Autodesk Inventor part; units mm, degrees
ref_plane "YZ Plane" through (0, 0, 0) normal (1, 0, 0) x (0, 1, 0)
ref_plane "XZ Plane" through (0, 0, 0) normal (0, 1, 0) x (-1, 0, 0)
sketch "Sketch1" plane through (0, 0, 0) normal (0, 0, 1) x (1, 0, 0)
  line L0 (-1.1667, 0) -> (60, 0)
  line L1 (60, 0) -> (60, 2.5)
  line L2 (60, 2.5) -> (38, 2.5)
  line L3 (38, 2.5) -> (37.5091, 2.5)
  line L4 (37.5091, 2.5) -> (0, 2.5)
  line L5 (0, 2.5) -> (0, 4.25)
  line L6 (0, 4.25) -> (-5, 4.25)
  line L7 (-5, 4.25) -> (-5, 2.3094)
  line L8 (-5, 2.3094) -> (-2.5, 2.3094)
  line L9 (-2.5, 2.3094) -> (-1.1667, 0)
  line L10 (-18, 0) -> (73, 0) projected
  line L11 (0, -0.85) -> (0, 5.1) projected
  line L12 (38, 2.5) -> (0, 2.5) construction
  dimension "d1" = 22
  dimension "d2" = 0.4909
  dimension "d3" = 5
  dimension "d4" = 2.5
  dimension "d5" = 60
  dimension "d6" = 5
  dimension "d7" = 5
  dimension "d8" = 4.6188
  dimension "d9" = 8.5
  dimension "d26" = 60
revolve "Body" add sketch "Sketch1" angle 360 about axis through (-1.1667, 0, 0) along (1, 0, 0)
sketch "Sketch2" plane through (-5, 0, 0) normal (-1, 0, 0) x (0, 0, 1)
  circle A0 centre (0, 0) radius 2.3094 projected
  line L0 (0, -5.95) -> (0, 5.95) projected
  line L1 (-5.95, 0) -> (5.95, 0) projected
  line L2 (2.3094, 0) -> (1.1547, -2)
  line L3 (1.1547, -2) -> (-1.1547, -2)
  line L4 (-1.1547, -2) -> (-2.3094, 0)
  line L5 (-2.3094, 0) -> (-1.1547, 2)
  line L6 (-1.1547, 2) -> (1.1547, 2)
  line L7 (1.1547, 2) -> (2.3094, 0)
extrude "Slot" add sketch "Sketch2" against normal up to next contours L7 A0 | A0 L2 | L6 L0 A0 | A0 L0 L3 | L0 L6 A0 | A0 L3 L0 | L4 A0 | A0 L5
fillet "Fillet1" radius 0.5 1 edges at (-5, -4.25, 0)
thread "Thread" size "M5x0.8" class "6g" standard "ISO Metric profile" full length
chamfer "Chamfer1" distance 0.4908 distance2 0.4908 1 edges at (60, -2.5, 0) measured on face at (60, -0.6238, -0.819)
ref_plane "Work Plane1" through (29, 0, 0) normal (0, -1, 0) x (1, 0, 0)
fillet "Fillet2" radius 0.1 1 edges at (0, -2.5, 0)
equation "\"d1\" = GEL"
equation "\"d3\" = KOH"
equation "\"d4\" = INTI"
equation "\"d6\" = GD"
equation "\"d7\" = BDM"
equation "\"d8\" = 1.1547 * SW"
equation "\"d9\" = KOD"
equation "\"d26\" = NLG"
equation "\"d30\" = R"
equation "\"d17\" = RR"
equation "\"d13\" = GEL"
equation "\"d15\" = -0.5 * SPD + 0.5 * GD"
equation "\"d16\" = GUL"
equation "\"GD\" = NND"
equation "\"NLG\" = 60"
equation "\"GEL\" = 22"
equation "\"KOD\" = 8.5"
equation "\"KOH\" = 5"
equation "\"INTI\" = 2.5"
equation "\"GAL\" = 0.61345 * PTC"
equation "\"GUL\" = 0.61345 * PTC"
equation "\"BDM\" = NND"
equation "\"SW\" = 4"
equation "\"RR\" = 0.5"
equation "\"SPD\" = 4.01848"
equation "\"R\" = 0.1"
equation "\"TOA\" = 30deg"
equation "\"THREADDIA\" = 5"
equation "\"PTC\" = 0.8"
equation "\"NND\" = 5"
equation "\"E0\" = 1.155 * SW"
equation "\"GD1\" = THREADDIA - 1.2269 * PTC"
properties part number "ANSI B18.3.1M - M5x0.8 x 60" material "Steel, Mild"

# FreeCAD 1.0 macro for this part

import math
import FreeCAD as App
import Part
import Sketcher

V = App.Vector
Q = App.Units.Quantity


def edges_at(feature, points):
    """Names of the edges that pass closest to the given points."""
    edges = feature.Shape.Edges
    near = lambda p: min(range(len(edges)), key=lambda i: edges[i].distToShape(Part.Vertex(*p))[0])
    return sorted({f"Edge{near(p) + 1}" for p in points})

doc = App.newDocument("Part")
body = doc.addObject("PartDesign::Body", "Body")

# Sketch on XY plane
sketch1 = doc.addObject("Sketcher::SketchObject", "Sketch")
body.addObject(sketch1)
sketch1.AttachmentSupport = (doc.XY_Plane, [""])
sketch1.MapMode = "FlatFace"
sketch1.addGeometry(Part.LineSegment(V(-2.5, 2.3, 0), V(-1.2, 0, 0)), False)
sketch1.addGeometry(Part.LineSegment(V(-1.2, 0, 0), V(60, 0, 0)), False)
sketch1.addGeometry(Part.LineSegment(V(60, 0, 0), V(60, 2.5, 0)), False)
sketch1.addGeometry(Part.LineSegment(V(60, 2.5, 0), V(0, 2.5, 0)), False)
sketch1.addGeometry(Part.LineSegment(V(0, 2.5, 0), V(0, 4.2, 0)), False)
sketch1.addGeometry(Part.LineSegment(V(0, 4.2, 0), V(-5, 4.2, 0)), False)
sketch1.addGeometry(Part.LineSegment(V(-5, 4.2, 0), V(-5, 2.3, 0)), False)
sketch1.addGeometry(Part.LineSegment(V(-5, 2.3, 0), V(-2.5, 2.3, 0)), False)
sketch1.addConstraint(Sketcher.Constraint("Coincident", 0, 2, 1, 1))
sketch1.addConstraint(Sketcher.Constraint("Coincident", 1, 2, 2, 1))
sketch1.addConstraint(Sketcher.Constraint("Coincident", 2, 2, 3, 1))
sketch1.addConstraint(Sketcher.Constraint("Coincident", 3, 2, 4, 1))
sketch1.addConstraint(Sketcher.Constraint("Coincident", 4, 2, 5, 1))
sketch1.addConstraint(Sketcher.Constraint("Coincident", 5, 2, 6, 1))
sketch1.addConstraint(Sketcher.Constraint("Coincident", 6, 2, 7, 1))
sketch1.addConstraint(Sketcher.Constraint("Coincident", 7, 2, 0, 1))
sketch1.addConstraint(Sketcher.Constraint("Horizontal", 1))
sketch1.addConstraint(Sketcher.Constraint("Vertical", 2))
sketch1.addConstraint(Sketcher.Constraint("Horizontal", 3))
sketch1.addConstraint(Sketcher.Constraint("Vertical", 4))
sketch1.addConstraint(Sketcher.Constraint("Horizontal", 5))
sketch1.addConstraint(Sketcher.Constraint("Vertical", 6))
sketch1.addConstraint(Sketcher.Constraint("Horizontal", 7))
sketch1.addConstraint(Sketcher.Constraint("PointOnObject", 0, 2, -1))
sketch1.addConstraint(Sketcher.Constraint("PointOnObject", 3, 2, -2))
sketch1.addConstraint(Sketcher.Constraint("Equal", 7, 2))
sketch1.addConstraint(Sketcher.Constraint("DistanceX", 3, 2, 3, 1, 60.0))
sketch1.addConstraint(Sketcher.Constraint("DistanceX", 5, 2, 5, 1, 5.0))
sketch1.addConstraint(Sketcher.Constraint("DistanceX", 7, 1, 7, 2, 2.5))
sketch1.addConstraint(Sketcher.Constraint("Angle", 0, Q("-60.0006 deg")))
sketch1.addConstraint(Sketcher.Constraint("DistanceY", 4, 1, 4, 2, 1.75))
sketch1.addConstraint(Sketcher.Constraint("DistanceX", 1, 1, 1, 2, 61.1667))
revolution = doc.addObject("PartDesign::Revolution", "Revolution")
body.addObject(revolution)
revolution.Profile = sketch1
revolution.ReferenceAxis = (sketch1, ["H_Axis"])
revolution.Angle = 360

# Sketch on YZ plane
sketch2 = doc.addObject("Sketcher::SketchObject", "Sketch001")
body.addObject(sketch2)
sketch2.AttachmentSupport = (doc.YZ_Plane, [""])
sketch2.MapMode = "FlatFace"
sketch2.AttachmentOffset = App.Placement(V(0, 0, -5), App.Rotation())
sketch2.addGeometry(Part.LineSegment(V(2, 1.2, 0), V(0, 2.3, 0)), False)
sketch2.addGeometry(Part.ArcOfCircle(Part.Circle(V(0, 0, 0), V(0, 0, 1), 2.3), math.radians(30), math.radians(90)), False)
sketch2.addGeometry(Part.ArcOfCircle(Part.Circle(V(0, 0, 0), V(0, 0, 1), 2.3), math.radians(90), math.radians(150)), False)
sketch2.addGeometry(Part.LineSegment(V(0, 2.3, 0), V(-2, 1.2, 0)), False)
sketch2.addGeometry(Part.ArcOfCircle(Part.Circle(V(0, 0, 0), V(0, 0, 1), 2.3), math.radians(-30), math.radians(30)), False)
sketch2.addGeometry(Part.LineSegment(V(2, -1.2, 0), V(2, 1.2, 0)), False)
sketch2.addGeometry(Part.LineSegment(V(-2, 1.2, 0), V(-2, -1.2, 0)), False)
sketch2.addGeometry(Part.ArcOfCircle(Part.Circle(V(0, 0, 0), V(0, 0, 1), 2.3), math.radians(150), math.radians(210)), False)
sketch2.addGeometry(Part.LineSegment(V(-2, -1.2, 0), V(0, -2.3, 0)), False)
sketch2.addGeometry(Part.ArcOfCircle(Part.Circle(V(0, 0, 0), V(0, 0, 1), 2.3), math.radians(-150), math.radians(-90)), False)
sketch2.addGeometry(Part.ArcOfCircle(Part.Circle(V(0, 0, 0), V(0, 0, 1), 2.3), math.radians(-90), math.radians(-30)), False)
sketch2.addGeometry(Part.LineSegment(V(0, -2.3, 0), V(2, -1.2, 0)), False)
sketch2.addConstraint(Sketcher.Constraint("Coincident", 0, 1, 1, 1))
sketch2.addConstraint(Sketcher.Constraint("Coincident", 1, 2, 0, 2))
sketch2.addConstraint(Sketcher.Constraint("Coincident", 2, 1, 3, 1))
sketch2.addConstraint(Sketcher.Constraint("Coincident", 3, 2, 2, 2))
sketch2.addConstraint(Sketcher.Constraint("Coincident", 4, 1, 5, 1))
sketch2.addConstraint(Sketcher.Constraint("Coincident", 5, 2, 4, 2))
sketch2.addConstraint(Sketcher.Constraint("Coincident", 6, 1, 7, 1))
sketch2.addConstraint(Sketcher.Constraint("Coincident", 7, 2, 6, 2))
sketch2.addConstraint(Sketcher.Constraint("Coincident", 8, 1, 9, 1))
sketch2.addConstraint(Sketcher.Constraint("Coincident", 9, 2, 8, 2))
sketch2.addConstraint(Sketcher.Constraint("Coincident", 10, 1, 11, 1))
sketch2.addConstraint(Sketcher.Constraint("Coincident", 11, 2, 10, 2))
sketch2.addConstraint(Sketcher.Constraint("Vertical", 5))
sketch2.addConstraint(Sketcher.Constraint("Vertical", 6))
sketch2.addConstraint(Sketcher.Constraint("Coincident", 1, 3, -1, 1))
sketch2.addConstraint(Sketcher.Constraint("Coincident", 2, 3, -1, 1))
sketch2.addConstraint(Sketcher.Constraint("Coincident", 4, 3, -1, 1))
sketch2.addConstraint(Sketcher.Constraint("Coincident", 7, 3, -1, 1))
sketch2.addConstraint(Sketcher.Constraint("Coincident", 9, 3, -1, 1))
sketch2.addConstraint(Sketcher.Constraint("Coincident", 10, 3, -1, 1))
sketch2.addConstraint(Sketcher.Constraint("Coincident", 2, 1, 1, 2))
sketch2.addConstraint(Sketcher.Constraint("Coincident", 5, 2, 0, 1))
sketch2.addConstraint(Sketcher.Constraint("Coincident", 6, 1, 3, 2))
sketch2.addConstraint(Sketcher.Constraint("Coincident", 8, 1, 7, 2))
sketch2.addConstraint(Sketcher.Constraint("Coincident", 10, 1, 9, 2))
sketch2.addConstraint(Sketcher.Constraint("PointOnObject", 1, 2, -2))
sketch2.addConstraint(Sketcher.Constraint("PointOnObject", 9, 2, -2))
sketch2.addConstraint(Sketcher.Constraint("Parallel", 0, 8))
sketch2.addConstraint(Sketcher.Constraint("Parallel", 3, 11))
sketch2.addConstraint(Sketcher.Constraint("Angle", 0, Q("150 deg")))
sketch2.addConstraint(Sketcher.Constraint("DistanceX", -1, 1, 0, 1, 2.0))
pad1 = doc.addObject("PartDesign::Pad", "Pad")
body.addObject(pad1)
pad1.Profile = sketch2
pad1.Length = 2.6786
doc.recompute()

fillet = doc.addObject("PartDesign::Fillet", "Fillet")
body.addObject(fillet)
fillet.Base = (pad1, edges_at(pad1, [(-5, -4.25, 0)]))
fillet.Radius = 0.5
doc.recompute()

chamfer = doc.addObject("PartDesign::Chamfer", "Chamfer")
body.addObject(chamfer)
chamfer.Base = (fillet, edges_at(fillet, [(60, -2.5, 0)]))
chamfer.ChamferType = "Two distances"
chamfer.Size = 0.4908
chamfer.Size2 = 0.4908
doc.recompute()

fillet2 = doc.addObject("PartDesign::Fillet", "Fillet001")
body.addObject(fillet2)
fillet2.Base = (chamfer, edges_at(chamfer, [(0, -2.5, 0)]))
fillet2.Radius = 0.1

doc.recompute()
